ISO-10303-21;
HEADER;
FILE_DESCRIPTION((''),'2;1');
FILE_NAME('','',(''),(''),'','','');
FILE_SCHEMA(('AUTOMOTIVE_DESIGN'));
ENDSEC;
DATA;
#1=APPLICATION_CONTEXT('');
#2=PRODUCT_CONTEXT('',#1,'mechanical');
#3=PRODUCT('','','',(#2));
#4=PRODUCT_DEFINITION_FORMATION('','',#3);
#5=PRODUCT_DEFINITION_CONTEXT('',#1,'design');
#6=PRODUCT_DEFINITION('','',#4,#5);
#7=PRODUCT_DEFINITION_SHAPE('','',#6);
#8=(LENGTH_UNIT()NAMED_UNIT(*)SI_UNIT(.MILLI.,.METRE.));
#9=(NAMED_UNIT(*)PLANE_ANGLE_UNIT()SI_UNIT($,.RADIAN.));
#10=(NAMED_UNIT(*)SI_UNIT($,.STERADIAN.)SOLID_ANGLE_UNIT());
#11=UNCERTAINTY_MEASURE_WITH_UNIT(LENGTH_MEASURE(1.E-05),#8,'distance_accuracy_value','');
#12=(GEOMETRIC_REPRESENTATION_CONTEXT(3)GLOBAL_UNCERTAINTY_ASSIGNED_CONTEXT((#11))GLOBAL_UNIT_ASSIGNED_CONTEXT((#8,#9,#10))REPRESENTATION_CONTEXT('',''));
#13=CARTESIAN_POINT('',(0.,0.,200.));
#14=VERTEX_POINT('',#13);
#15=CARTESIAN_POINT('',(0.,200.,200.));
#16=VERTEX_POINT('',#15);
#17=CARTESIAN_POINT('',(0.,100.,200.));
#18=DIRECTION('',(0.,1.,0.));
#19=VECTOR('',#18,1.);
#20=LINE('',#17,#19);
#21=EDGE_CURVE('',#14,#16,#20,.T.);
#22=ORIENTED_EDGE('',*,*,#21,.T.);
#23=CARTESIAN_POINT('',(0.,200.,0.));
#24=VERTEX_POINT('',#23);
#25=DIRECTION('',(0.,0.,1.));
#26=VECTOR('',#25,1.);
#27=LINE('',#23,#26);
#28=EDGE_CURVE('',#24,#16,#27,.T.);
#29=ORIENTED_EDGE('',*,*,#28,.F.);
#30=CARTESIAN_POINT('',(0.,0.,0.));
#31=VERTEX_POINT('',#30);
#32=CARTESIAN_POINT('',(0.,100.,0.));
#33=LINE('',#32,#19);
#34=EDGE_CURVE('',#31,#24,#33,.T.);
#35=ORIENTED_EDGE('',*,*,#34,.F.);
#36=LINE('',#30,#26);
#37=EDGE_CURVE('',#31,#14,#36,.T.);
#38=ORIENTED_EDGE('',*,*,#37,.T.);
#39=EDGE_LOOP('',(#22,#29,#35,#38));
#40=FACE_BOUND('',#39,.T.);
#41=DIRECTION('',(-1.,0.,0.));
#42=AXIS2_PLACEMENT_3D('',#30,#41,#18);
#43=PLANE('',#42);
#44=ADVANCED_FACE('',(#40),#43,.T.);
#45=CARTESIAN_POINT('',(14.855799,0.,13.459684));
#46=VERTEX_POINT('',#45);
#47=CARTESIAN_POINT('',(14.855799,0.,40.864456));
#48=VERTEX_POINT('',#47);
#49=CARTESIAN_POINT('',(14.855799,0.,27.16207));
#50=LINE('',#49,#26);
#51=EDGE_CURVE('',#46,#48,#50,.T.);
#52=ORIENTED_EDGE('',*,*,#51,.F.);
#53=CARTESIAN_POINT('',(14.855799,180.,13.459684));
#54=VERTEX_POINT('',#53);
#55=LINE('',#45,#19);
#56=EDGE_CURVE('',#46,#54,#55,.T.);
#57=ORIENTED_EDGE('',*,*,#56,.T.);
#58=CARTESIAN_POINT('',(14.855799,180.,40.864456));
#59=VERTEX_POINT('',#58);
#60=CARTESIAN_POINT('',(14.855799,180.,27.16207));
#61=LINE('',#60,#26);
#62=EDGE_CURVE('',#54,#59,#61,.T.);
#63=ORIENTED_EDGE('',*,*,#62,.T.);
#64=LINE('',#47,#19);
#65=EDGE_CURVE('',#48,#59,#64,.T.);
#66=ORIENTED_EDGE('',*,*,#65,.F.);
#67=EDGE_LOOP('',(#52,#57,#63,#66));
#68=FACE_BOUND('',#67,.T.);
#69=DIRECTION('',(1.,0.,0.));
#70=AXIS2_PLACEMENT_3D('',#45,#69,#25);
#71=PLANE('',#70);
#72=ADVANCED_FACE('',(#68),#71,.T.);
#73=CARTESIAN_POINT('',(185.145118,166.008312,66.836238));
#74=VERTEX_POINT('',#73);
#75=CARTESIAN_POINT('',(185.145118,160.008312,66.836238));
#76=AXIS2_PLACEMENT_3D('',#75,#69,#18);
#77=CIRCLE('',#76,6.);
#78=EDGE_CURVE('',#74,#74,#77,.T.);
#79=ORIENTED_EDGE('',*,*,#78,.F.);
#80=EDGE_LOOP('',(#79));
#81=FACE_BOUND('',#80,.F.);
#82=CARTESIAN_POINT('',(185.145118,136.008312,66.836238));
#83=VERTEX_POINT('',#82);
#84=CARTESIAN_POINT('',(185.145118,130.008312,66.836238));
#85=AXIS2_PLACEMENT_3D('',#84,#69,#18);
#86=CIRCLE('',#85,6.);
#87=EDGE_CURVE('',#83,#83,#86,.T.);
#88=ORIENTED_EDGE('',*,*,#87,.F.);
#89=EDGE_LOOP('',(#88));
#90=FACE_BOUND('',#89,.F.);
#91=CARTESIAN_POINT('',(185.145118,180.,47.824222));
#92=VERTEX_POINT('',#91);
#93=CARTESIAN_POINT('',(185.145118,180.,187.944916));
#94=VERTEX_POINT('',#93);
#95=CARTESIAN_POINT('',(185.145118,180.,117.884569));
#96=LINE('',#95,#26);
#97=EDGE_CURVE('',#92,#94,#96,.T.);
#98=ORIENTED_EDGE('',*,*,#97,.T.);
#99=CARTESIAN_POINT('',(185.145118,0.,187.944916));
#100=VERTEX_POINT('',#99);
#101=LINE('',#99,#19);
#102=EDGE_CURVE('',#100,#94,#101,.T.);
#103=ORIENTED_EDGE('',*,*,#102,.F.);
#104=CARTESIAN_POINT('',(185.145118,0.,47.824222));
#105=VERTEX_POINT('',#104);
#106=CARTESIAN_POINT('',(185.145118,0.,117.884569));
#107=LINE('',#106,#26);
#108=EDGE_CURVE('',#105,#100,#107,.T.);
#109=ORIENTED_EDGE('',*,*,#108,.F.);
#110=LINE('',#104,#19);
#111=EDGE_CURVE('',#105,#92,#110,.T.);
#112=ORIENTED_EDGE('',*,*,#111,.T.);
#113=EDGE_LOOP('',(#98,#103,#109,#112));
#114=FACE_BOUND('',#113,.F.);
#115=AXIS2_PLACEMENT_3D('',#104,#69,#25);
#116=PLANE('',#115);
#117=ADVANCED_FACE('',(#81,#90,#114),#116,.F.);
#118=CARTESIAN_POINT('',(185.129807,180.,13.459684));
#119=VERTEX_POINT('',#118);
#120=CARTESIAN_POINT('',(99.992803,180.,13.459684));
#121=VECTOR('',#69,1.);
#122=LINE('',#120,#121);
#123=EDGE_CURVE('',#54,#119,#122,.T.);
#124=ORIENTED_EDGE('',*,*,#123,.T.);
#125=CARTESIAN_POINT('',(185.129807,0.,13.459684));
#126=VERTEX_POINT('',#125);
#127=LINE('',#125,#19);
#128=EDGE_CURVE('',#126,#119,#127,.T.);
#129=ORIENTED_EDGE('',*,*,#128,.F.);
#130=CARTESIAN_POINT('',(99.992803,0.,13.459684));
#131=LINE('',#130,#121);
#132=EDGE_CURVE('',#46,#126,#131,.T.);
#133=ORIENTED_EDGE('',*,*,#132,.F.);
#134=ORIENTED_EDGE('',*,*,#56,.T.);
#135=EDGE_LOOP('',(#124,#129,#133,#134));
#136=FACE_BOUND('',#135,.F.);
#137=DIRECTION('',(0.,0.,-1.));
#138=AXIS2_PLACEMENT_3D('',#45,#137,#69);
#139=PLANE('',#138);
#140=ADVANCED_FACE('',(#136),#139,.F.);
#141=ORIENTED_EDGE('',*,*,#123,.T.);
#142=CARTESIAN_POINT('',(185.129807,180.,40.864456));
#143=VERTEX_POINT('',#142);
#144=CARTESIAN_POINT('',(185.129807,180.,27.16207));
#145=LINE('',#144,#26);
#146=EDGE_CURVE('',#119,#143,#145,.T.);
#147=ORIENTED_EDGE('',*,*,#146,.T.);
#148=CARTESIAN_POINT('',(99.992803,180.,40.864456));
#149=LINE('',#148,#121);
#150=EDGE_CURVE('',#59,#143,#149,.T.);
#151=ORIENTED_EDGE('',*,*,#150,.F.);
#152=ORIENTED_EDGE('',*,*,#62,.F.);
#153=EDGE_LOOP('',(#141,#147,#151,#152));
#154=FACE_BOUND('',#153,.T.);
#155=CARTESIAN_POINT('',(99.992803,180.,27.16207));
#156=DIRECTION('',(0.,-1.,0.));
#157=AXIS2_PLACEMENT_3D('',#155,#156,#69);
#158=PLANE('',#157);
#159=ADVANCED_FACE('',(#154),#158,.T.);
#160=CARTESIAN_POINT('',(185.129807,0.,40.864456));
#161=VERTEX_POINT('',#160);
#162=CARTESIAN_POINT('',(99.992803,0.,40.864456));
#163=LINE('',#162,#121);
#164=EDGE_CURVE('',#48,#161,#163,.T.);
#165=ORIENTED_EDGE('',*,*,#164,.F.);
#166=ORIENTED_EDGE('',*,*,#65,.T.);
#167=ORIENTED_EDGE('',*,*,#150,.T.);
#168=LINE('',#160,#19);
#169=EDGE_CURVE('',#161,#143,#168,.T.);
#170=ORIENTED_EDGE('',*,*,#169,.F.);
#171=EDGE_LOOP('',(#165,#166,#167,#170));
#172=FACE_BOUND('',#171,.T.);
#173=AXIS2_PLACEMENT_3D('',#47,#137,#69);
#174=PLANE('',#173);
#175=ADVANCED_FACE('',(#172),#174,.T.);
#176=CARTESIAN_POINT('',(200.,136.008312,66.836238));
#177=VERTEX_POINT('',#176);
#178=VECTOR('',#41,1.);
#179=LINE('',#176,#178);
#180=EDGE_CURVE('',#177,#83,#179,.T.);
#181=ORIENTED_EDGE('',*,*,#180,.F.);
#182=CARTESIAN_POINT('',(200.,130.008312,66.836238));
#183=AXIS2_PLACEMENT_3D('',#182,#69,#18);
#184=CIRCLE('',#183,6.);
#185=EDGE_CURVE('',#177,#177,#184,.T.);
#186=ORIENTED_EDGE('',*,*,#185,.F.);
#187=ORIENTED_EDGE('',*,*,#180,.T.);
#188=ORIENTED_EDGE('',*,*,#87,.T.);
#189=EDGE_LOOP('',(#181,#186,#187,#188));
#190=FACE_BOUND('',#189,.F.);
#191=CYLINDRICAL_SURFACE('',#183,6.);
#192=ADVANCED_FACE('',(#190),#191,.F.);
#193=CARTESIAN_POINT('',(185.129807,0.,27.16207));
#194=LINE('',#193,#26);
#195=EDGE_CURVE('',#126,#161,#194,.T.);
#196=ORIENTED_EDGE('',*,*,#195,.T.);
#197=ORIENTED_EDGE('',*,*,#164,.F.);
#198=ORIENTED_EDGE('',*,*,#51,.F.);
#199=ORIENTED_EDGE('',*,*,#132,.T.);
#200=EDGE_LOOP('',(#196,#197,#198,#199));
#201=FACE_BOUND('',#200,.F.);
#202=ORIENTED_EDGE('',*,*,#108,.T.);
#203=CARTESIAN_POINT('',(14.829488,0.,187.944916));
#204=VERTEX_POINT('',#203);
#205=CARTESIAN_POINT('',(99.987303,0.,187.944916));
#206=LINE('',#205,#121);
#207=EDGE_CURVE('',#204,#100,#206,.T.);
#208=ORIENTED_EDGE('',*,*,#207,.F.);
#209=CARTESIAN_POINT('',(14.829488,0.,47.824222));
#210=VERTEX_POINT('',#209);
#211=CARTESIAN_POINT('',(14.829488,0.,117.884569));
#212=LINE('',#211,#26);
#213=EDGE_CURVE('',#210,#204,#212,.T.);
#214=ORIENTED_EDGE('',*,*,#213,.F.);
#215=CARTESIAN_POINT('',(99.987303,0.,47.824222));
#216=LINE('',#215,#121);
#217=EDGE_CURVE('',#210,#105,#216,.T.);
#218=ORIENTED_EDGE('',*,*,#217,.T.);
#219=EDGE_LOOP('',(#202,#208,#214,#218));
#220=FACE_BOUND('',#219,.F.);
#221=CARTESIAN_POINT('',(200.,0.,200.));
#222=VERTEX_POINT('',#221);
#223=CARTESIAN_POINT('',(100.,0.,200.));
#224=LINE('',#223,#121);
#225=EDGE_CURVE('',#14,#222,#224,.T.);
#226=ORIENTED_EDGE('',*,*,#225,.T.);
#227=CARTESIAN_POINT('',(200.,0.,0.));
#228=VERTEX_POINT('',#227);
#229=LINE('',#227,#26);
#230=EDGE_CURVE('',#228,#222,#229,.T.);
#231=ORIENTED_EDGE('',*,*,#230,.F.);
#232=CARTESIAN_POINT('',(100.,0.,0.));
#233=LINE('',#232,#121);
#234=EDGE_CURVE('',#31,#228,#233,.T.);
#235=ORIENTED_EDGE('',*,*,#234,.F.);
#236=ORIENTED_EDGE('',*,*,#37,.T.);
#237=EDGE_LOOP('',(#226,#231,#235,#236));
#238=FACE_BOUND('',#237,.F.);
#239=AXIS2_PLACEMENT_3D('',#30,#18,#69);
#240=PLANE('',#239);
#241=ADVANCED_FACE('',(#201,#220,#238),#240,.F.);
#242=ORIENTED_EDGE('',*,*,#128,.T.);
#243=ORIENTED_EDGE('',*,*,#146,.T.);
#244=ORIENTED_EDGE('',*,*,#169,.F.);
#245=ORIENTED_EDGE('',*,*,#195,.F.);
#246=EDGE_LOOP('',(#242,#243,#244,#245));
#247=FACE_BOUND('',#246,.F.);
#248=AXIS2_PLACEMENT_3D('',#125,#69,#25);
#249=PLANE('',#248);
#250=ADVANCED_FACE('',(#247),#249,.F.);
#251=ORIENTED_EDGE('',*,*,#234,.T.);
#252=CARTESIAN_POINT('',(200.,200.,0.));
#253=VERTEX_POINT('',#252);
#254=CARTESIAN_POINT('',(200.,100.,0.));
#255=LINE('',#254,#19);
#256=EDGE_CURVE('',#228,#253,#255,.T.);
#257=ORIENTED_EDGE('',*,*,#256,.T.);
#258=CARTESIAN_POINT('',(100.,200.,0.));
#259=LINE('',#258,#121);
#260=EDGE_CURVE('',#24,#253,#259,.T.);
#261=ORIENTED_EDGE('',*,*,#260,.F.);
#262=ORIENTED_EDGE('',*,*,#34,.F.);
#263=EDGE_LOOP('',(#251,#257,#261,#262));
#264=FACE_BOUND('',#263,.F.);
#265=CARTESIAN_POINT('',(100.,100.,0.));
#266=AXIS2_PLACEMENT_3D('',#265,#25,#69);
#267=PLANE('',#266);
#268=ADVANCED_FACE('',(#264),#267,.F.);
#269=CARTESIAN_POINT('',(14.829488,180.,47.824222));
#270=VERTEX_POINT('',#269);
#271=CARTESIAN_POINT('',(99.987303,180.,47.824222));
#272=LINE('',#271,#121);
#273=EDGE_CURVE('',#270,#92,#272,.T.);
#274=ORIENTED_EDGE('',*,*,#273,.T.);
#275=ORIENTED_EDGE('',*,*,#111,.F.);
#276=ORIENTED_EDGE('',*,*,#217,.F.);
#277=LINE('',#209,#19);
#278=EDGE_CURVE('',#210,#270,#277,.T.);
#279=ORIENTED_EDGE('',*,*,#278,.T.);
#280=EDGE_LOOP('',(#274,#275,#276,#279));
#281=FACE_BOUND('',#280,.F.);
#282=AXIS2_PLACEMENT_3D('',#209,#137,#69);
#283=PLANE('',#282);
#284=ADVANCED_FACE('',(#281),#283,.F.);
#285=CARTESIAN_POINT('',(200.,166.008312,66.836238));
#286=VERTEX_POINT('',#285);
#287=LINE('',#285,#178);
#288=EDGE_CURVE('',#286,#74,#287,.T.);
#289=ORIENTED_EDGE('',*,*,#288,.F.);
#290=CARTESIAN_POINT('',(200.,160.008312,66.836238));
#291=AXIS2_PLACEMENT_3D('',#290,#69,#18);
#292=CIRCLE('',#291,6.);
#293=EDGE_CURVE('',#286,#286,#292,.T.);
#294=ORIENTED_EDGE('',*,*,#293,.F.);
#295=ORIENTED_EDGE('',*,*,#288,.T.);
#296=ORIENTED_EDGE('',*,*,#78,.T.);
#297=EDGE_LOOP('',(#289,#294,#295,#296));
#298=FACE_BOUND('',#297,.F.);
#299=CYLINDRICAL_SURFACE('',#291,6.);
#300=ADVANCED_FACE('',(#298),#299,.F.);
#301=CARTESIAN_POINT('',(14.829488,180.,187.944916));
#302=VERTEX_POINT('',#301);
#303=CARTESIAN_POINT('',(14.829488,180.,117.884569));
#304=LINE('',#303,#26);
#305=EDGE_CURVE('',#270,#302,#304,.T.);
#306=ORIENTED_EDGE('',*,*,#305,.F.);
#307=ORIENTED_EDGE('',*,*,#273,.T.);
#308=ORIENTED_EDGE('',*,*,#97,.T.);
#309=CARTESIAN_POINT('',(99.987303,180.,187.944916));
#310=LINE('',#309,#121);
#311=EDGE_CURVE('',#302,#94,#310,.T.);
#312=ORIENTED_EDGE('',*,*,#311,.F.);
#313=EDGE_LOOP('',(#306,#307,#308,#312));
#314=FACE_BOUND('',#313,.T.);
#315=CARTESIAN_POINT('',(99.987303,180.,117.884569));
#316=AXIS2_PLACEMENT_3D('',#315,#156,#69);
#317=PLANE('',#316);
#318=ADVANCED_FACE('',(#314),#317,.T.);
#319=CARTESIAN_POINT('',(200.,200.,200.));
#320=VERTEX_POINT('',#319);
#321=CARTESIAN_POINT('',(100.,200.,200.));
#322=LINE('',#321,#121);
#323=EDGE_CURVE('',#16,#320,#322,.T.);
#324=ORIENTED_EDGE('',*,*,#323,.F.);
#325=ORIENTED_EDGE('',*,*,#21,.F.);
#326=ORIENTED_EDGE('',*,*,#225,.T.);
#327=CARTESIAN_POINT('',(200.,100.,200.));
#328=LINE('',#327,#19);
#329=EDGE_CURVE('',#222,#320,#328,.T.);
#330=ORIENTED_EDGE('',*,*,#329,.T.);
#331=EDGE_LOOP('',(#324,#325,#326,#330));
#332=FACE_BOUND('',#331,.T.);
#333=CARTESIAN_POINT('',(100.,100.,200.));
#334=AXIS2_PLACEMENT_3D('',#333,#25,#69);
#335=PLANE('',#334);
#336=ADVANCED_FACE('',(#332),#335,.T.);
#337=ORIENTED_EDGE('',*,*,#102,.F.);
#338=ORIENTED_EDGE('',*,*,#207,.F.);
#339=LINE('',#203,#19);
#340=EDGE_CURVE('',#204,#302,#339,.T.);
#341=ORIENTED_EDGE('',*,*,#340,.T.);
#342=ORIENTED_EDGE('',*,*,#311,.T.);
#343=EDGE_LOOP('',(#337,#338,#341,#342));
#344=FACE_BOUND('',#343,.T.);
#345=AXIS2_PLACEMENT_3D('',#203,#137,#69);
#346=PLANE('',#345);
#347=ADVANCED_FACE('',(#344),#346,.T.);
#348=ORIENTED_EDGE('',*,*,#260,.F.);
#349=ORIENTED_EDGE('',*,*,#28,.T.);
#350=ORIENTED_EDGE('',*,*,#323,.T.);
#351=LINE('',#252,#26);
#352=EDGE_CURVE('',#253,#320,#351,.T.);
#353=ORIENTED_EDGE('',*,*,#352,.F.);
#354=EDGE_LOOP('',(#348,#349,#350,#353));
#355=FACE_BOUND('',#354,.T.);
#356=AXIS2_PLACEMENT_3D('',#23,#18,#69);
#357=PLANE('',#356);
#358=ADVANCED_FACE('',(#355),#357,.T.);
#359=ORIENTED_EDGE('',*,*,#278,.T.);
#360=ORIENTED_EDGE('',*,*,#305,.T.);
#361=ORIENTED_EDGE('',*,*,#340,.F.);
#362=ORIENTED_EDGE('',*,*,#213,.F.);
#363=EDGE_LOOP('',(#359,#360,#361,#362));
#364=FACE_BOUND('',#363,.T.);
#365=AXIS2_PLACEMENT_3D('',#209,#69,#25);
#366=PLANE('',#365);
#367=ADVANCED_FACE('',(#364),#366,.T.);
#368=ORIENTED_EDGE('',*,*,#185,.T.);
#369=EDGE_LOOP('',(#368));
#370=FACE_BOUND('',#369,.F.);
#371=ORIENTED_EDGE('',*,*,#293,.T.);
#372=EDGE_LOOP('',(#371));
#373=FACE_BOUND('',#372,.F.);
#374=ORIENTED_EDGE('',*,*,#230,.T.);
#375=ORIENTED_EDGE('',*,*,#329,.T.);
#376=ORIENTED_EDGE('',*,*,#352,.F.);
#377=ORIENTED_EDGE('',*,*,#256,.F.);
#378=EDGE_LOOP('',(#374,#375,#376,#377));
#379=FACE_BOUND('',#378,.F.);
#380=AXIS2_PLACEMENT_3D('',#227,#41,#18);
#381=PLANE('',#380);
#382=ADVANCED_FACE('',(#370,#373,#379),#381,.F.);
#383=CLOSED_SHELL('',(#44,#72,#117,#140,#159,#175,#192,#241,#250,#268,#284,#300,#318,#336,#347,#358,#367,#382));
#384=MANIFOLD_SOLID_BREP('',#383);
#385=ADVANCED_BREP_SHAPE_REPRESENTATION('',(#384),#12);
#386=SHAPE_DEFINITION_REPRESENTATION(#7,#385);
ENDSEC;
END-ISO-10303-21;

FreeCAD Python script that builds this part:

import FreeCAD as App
import Part
import Sketcher
Q = App.Units.Quantity


def add_polygon(sketch, points):
    """Adds a closed chain of lines whose ends are joined by coincident constraints."""
    first, n = sketch.GeometryCount, len(points)
    for a, b in zip(points, points[1:] + points[:1]):
        sketch.addGeometry(Part.LineSegment(App.Vector(*a, 0), App.Vector(*b, 0)), False)
    for i in range(n):
        sketch.addConstraint(Sketcher.Constraint("Coincident", first + i, 2, first + (i + 1) % n, 1))

doc = App.newDocument("Part")
body = doc.addObject("PartDesign::Body", "Body")

sketch1 = body.newObject("Sketcher::SketchObject", "Sketch")
sketch1.AttachmentSupport = (doc.getObject("XY_Plane"), [""])
sketch1.MapMode = "FlatFace"
add_polygon(sketch1, [(0, 200), (0, 0), (200, 0), (200, 200)])
sketch1.addConstraint(Sketcher.Constraint("Vertical", 0))
sketch1.addConstraint(Sketcher.Constraint("Horizontal", 1))
sketch1.addConstraint(Sketcher.Constraint("Vertical", 2))
sketch1.addConstraint(Sketcher.Constraint("Horizontal", 3))
sketch1.addConstraint(Sketcher.Constraint("Coincident", 0, 2, -1, 1))
sketch1.addConstraint(Sketcher.Constraint("Equal", 3, 0))
sketch1.addConstraint(Sketcher.Constraint("DistanceX", 1, 1, 1, 2, Q("200 mm")))
pad1 = body.newObject("PartDesign::Pad", "Pad")
pad1.Profile = sketch1
pad1.Length = 200

sketch2 = body.newObject("Sketcher::SketchObject", "Sketch001")
sketch2.AttachmentSupport = (doc.getObject("XZ_Plane"), [""])
sketch2.MapMode = "FlatFace"
add_polygon(sketch2, [(15, 188), (15, 48), (185, 48), (185, 188)])
add_polygon(sketch2, [(15, 41), (15, 13), (185, 13), (185, 41)])
sketch2.addConstraint(Sketcher.Constraint("Vertical", 0))
sketch2.addConstraint(Sketcher.Constraint("Horizontal", 1))
sketch2.addConstraint(Sketcher.Constraint("Vertical", 2))
sketch2.addConstraint(Sketcher.Constraint("Horizontal", 3))
sketch2.addConstraint(Sketcher.Constraint("Vertical", 4))
sketch2.addConstraint(Sketcher.Constraint("Horizontal", 5))
sketch2.addConstraint(Sketcher.Constraint("Vertical", 6))
sketch2.addConstraint(Sketcher.Constraint("Horizontal", 7))
sketch2.addConstraint(Sketcher.Constraint("DistanceX", 1, 1, 1, 2, Q("170.31563 mm")))
sketch2.addConstraint(Sketcher.Constraint("DistanceY", 4, 2, 4, 1, Q("27.404772 mm")))
sketch2.addConstraint(Sketcher.Constraint("DistanceX", -1, 1, 4, 2, Q("14.855799 mm")))
sketch2.addConstraint(Sketcher.Constraint("DistanceX", 5, 1, 5, 2, Q("170.274007 mm")))
sketch2.addConstraint(Sketcher.Constraint("DistanceY", 0, 2, 0, 1, Q("140.120693 mm")))
sketch2.addConstraint(Sketcher.Constraint("DistanceX", -1, 1, 1, 2, Q("185.145118 mm")))
sketch2.addConstraint(Sketcher.Constraint("DistanceY", 4, 2, 0, 2, Q("34.364538 mm")))
sketch2.addConstraint(Sketcher.Constraint("DistanceY", -1, 1, 0, 2, Q("47.824222 mm")))
pocket1 = body.newObject("PartDesign::Pocket", "Pocket")
pocket1.Profile = sketch2
pocket1.Length = 180

sketch3 = body.newObject("Sketcher::SketchObject", "Sketch002")
sketch3.AttachmentSupport = (doc.getObject("YZ_Plane"), [""])
sketch3.MapMode = "FlatFace"
sketch3.AttachmentOffset = App.Placement(App.Vector(0, 0, 200), App.Rotation())
sketch3.addGeometry(Part.Circle(App.Vector(130, 67, 0), App.Vector(0, 0, 1), 6), False)
sketch3.addGeometry(Part.Circle(App.Vector(160, 67, 0), App.Vector(0, 0, 1), 6), False)
sketch3.addConstraint(Sketcher.Constraint("Equal", 0, 1))
sketch3.addConstraint(Sketcher.Constraint("Horizontal", 0, 3, 1, 3))
sketch3.addConstraint(Sketcher.Constraint("Diameter", 0, Q("12 mm")))
sketch3.addConstraint(Sketcher.Constraint("DistanceX", 0, 3, 1, 3, Q("30 mm")))
sketch3.addConstraint(Sketcher.Constraint("DistanceX", -1, 1, 0, 3, Q("130.008312 mm")))
sketch3.addConstraint(Sketcher.Constraint("DistanceY", -1, 1, 0, 3, Q("66.836238 mm")))
pocket2 = body.newObject("PartDesign::Pocket", "Pocket001")
pocket2.Profile = sketch3
pocket2.Length = 20

doc.recompute()
